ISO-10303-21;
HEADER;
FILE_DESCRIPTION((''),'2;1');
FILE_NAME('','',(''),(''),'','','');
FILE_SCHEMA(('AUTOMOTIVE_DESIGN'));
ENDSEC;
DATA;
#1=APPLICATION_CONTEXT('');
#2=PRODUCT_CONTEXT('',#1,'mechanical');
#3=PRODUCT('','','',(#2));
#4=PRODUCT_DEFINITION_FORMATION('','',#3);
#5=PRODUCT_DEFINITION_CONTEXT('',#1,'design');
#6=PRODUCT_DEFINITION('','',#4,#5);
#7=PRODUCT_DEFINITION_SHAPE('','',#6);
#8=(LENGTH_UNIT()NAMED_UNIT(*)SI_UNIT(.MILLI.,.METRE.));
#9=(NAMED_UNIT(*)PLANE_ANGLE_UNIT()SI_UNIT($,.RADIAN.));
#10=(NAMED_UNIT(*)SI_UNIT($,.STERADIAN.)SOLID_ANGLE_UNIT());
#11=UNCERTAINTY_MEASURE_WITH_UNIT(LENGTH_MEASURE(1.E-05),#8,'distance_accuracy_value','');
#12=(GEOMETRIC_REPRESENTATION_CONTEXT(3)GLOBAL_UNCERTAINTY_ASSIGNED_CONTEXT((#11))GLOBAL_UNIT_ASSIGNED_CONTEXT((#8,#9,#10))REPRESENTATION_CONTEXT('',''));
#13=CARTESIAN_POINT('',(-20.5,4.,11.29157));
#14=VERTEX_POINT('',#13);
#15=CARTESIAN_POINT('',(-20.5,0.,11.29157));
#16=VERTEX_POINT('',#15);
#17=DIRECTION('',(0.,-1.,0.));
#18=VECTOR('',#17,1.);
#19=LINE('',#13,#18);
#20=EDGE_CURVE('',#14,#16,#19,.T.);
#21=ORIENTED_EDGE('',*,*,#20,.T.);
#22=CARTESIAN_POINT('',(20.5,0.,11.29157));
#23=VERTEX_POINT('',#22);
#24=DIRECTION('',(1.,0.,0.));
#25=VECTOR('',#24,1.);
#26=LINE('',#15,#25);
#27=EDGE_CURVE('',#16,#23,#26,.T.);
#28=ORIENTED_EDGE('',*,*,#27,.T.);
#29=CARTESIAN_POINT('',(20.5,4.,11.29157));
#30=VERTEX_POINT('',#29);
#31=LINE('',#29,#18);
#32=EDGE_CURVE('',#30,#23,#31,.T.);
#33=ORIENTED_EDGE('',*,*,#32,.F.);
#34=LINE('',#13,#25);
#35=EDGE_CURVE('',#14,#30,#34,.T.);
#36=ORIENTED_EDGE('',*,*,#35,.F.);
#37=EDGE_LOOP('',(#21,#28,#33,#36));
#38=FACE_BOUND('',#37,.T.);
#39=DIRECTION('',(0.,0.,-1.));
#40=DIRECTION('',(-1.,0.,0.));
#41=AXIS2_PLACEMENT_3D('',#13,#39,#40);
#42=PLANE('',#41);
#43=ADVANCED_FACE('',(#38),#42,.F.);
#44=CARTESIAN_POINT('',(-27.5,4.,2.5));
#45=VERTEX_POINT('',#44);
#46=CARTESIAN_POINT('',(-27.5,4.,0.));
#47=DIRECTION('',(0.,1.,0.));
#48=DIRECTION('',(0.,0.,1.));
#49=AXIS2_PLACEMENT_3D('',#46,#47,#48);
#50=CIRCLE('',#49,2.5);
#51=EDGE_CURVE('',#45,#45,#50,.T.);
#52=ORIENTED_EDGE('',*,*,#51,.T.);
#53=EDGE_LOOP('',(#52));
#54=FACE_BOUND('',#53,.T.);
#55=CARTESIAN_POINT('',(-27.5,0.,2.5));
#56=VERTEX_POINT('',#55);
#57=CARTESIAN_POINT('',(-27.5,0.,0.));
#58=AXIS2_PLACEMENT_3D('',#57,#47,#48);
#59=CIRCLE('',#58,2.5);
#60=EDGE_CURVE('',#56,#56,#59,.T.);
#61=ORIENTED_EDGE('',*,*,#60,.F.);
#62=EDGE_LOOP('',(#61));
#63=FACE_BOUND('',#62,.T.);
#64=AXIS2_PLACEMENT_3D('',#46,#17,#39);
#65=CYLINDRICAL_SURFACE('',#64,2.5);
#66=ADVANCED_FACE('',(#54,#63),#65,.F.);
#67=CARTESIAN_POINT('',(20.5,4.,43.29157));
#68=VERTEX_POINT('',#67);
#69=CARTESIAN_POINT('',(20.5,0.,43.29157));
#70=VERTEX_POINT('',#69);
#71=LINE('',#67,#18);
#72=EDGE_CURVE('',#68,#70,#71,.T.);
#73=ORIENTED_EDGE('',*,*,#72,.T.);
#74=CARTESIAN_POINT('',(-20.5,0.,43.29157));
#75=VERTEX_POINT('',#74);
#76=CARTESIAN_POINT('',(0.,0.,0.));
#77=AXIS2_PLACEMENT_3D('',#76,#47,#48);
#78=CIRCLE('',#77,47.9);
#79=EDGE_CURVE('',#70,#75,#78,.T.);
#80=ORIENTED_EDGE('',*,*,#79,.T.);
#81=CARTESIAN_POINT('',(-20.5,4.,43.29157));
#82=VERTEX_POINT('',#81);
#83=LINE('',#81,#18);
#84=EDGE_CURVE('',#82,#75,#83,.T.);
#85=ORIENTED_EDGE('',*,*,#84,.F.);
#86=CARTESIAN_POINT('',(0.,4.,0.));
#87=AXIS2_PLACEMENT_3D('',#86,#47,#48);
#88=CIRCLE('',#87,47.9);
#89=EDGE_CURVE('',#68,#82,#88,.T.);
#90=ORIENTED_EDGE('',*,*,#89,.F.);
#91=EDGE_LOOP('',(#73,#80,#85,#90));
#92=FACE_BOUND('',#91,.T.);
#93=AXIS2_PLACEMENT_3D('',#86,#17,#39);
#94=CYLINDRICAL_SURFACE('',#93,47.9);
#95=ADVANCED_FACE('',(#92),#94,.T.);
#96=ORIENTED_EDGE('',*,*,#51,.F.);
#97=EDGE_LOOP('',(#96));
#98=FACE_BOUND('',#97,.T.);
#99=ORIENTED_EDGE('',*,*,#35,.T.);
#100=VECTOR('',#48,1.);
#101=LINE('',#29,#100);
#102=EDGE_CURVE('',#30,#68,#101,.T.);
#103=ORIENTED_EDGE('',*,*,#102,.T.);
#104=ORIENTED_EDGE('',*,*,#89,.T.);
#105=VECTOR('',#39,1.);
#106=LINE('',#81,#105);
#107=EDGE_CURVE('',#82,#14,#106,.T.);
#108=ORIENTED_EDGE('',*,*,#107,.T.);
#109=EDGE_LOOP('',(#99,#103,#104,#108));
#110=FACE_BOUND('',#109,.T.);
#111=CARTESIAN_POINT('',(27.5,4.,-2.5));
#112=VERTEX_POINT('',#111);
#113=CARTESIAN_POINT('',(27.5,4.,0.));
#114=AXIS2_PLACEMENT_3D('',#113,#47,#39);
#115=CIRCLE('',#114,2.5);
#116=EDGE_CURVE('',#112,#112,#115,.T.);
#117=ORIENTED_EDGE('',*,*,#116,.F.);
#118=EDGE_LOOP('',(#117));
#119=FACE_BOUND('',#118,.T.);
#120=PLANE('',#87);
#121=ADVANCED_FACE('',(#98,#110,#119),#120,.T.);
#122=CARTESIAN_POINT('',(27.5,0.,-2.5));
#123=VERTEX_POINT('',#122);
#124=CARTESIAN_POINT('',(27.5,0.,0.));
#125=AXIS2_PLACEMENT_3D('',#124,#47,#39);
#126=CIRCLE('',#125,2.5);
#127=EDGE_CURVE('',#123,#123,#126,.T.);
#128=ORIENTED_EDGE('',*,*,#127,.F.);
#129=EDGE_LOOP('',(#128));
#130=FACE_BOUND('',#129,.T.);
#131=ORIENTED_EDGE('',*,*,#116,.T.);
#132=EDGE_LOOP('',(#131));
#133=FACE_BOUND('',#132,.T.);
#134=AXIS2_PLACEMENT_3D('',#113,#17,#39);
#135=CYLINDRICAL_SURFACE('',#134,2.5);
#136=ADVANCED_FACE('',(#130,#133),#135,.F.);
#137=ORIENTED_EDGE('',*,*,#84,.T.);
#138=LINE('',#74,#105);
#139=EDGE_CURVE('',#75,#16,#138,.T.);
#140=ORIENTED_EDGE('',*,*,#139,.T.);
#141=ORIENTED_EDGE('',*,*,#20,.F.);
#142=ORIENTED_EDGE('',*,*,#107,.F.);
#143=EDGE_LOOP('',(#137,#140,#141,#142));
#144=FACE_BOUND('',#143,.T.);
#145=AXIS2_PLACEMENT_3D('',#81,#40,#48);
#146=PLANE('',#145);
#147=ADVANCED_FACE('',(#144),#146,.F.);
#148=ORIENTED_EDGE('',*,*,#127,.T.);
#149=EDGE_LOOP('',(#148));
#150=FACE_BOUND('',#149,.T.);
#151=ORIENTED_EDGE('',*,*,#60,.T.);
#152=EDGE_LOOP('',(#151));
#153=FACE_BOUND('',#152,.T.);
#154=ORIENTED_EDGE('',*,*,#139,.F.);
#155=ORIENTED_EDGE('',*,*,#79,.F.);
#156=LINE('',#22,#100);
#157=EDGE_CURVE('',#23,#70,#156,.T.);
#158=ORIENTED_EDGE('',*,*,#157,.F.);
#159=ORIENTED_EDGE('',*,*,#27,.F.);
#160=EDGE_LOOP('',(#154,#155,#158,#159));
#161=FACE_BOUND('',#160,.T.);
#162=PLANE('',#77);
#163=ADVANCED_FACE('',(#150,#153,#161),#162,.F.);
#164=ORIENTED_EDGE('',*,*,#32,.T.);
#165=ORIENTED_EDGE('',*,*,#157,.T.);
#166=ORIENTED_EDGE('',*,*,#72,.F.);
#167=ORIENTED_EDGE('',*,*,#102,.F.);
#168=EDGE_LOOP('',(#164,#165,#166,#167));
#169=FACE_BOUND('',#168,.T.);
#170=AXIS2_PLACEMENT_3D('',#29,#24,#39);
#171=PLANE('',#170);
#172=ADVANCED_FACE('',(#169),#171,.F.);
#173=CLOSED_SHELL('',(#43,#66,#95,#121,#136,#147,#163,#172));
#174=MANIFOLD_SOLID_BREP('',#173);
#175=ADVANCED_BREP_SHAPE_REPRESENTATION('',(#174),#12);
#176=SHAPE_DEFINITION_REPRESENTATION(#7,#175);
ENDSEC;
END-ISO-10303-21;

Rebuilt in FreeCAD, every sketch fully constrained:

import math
import FreeCAD as App
import Part
import Sketcher

V = App.Vector
Q = App.Units.Quantity

doc = App.newDocument("Part")
body = doc.addObject("PartDesign::Body", "Body")

sketch1 = doc.addObject("Sketcher::SketchObject", "Sketch")
body.addObject(sketch1)
sketch1.AttachmentSupport = (doc.XZ_Plane, [""])
sketch1.MapMode = "FlatFace"
sketch1.addGeometry([
    Part.LineSegment(V(-20.5, 43.3, 0), V(-20.5, 11.3, 0)),
    Part.LineSegment(V(-20.5, 11.3, 0), V(20.5, 11.3, 0)),
    Part.LineSegment(V(20.5, 11.3, 0), V(20.5, 43.3, 0)),
    Part.ArcOfCircle(Part.Circle(V(0, 0, 0), V(0, 0, 1), 47.9), math.radians(115), math.radians(425)),
    Part.Circle(V(-27.5, 0, 0), V(0, 0, 1), 2.5),
    Part.Circle(V(27.5, 0, 0), V(0, 0, 1), 2.5),
], False)
sketch1.addConstraint([
    Sketcher.Constraint("Coincident", 0, 2, 1, 1),
    Sketcher.Constraint("Coincident", 1, 2, 2, 1),
    Sketcher.Constraint("Coincident", 2, 2, 3, 2),
    Sketcher.Constraint("Coincident", 3, 1, 0, 1),
    Sketcher.Constraint("Vertical", 0),
    Sketcher.Constraint("Horizontal", 1),
    Sketcher.Constraint("Vertical", 2),
    Sketcher.Constraint("Coincident", 3, 3, -1, 1),
    Sketcher.Constraint("Equal", 4, 5),
    Sketcher.Constraint("Symmetric", 4, 3, 5, 3, -1, 1),
    Sketcher.Constraint("PointOnObject", 4, 3, -1),
    Sketcher.Constraint("Horizontal", 2, 2, 3, 1),
    Sketcher.Constraint("Diameter", 4, Q("5 mm")),
    Sketcher.Constraint("Radius", 3, Q("47.9 mm")),
    Sketcher.Constraint("DistanceX", 1, 1, 1, 2, Q("41 mm")),
    Sketcher.Constraint("DistanceY", 0, 2, 0, 1, Q("32 mm")),
    Sketcher.Constraint("DistanceX", 4, 3, 5, 3, Q("55 mm")),
])
pad1 = doc.addObject("PartDesign::Pad", "Pad")
body.addObject(pad1)
pad1.Profile = sketch1
pad1.Length = 4
pad1.Reversed = True

doc.recompute()
